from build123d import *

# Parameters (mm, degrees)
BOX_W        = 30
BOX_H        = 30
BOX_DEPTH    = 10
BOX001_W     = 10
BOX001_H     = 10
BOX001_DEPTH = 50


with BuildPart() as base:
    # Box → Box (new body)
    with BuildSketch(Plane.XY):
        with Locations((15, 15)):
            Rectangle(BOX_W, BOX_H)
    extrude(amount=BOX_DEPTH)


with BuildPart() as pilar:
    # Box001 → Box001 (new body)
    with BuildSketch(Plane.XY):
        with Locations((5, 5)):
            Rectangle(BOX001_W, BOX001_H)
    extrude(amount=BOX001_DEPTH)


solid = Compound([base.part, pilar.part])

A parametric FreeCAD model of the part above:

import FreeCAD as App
import Part
import Sketcher
Q = App.Units.Quantity


def add_polygon(sketch, points):
    """Adds a closed chain of lines whose ends are joined by coincident constraints."""
    first, n = sketch.GeometryCount, len(points)
    for a, b in zip(points, points[1:] + points[:1]):
        sketch.addGeometry(Part.LineSegment(App.Vector(*a, 0), App.Vector(*b, 0)), False)
    for i in range(n):
        sketch.addConstraint(Sketcher.Constraint("Coincident", first + i, 2, first + (i + 1) % n, 1))

doc = App.newDocument("Part")
body = doc.addObject("PartDesign::Body", "Body")

# Sketch on XY plane
sketch1 = doc.addObject("Sketcher::SketchObject", "Sketch")
body.addObject(sketch1)
sketch1.AttachmentSupport = (doc.XY_Plane, [""])
sketch1.MapMode = "FlatFace"
add_polygon(sketch1, [(0, 30), (0, 0), (30, 0), (30, 30)])  # lines 0-3
sketch1.addConstraint([
    Sketcher.Constraint("Vertical", 0),
    Sketcher.Constraint("Horizontal", 1),
    Sketcher.Constraint("Vertical", 2),
    Sketcher.Constraint("Horizontal", 3),
    Sketcher.Constraint("Coincident", 0, 2, -1, 1),
    Sketcher.Constraint("Equal", 3, 0),
    Sketcher.Constraint("DistanceX", 1, 1, 1, 2, Q("30 mm")),
])
pad1 = doc.addObject("PartDesign::Pad", "Pad")
body.addObject(pad1)
pad1.Profile = sketch1
pad1.Length = 10
body2 = doc.addObject("PartDesign::Body", "Body001")

# Sketch on XY plane
sketch2 = doc.addObject("Sketcher::SketchObject", "Sketch001")
body2.addObject(sketch2)
sketch2.AttachmentSupport = (doc.getObject("XY_Plane001"), [""])
sketch2.MapMode = "FlatFace"
add_polygon(sketch2, [(0, 10), (0, 0), (10, 0), (10, 10)])  # lines 0-3
sketch2.addConstraint([
    Sketcher.Constraint("Vertical", 0),
    Sketcher.Constraint("Horizontal", 1),
    Sketcher.Constraint("Vertical", 2),
    Sketcher.Constraint("Horizontal", 3),
    Sketcher.Constraint("Coincident", 0, 2, -1, 1),
    Sketcher.Constraint("Equal", 3, 0),
    Sketcher.Constraint("DistanceX", 1, 1, 1, 2, Q("10 mm")),
])
pad2 = doc.addObject("PartDesign::Pad", "Pad001")
body2.addObject(pad2)
pad2.Profile = sketch2
pad2.Length = 50

doc.recompute()
